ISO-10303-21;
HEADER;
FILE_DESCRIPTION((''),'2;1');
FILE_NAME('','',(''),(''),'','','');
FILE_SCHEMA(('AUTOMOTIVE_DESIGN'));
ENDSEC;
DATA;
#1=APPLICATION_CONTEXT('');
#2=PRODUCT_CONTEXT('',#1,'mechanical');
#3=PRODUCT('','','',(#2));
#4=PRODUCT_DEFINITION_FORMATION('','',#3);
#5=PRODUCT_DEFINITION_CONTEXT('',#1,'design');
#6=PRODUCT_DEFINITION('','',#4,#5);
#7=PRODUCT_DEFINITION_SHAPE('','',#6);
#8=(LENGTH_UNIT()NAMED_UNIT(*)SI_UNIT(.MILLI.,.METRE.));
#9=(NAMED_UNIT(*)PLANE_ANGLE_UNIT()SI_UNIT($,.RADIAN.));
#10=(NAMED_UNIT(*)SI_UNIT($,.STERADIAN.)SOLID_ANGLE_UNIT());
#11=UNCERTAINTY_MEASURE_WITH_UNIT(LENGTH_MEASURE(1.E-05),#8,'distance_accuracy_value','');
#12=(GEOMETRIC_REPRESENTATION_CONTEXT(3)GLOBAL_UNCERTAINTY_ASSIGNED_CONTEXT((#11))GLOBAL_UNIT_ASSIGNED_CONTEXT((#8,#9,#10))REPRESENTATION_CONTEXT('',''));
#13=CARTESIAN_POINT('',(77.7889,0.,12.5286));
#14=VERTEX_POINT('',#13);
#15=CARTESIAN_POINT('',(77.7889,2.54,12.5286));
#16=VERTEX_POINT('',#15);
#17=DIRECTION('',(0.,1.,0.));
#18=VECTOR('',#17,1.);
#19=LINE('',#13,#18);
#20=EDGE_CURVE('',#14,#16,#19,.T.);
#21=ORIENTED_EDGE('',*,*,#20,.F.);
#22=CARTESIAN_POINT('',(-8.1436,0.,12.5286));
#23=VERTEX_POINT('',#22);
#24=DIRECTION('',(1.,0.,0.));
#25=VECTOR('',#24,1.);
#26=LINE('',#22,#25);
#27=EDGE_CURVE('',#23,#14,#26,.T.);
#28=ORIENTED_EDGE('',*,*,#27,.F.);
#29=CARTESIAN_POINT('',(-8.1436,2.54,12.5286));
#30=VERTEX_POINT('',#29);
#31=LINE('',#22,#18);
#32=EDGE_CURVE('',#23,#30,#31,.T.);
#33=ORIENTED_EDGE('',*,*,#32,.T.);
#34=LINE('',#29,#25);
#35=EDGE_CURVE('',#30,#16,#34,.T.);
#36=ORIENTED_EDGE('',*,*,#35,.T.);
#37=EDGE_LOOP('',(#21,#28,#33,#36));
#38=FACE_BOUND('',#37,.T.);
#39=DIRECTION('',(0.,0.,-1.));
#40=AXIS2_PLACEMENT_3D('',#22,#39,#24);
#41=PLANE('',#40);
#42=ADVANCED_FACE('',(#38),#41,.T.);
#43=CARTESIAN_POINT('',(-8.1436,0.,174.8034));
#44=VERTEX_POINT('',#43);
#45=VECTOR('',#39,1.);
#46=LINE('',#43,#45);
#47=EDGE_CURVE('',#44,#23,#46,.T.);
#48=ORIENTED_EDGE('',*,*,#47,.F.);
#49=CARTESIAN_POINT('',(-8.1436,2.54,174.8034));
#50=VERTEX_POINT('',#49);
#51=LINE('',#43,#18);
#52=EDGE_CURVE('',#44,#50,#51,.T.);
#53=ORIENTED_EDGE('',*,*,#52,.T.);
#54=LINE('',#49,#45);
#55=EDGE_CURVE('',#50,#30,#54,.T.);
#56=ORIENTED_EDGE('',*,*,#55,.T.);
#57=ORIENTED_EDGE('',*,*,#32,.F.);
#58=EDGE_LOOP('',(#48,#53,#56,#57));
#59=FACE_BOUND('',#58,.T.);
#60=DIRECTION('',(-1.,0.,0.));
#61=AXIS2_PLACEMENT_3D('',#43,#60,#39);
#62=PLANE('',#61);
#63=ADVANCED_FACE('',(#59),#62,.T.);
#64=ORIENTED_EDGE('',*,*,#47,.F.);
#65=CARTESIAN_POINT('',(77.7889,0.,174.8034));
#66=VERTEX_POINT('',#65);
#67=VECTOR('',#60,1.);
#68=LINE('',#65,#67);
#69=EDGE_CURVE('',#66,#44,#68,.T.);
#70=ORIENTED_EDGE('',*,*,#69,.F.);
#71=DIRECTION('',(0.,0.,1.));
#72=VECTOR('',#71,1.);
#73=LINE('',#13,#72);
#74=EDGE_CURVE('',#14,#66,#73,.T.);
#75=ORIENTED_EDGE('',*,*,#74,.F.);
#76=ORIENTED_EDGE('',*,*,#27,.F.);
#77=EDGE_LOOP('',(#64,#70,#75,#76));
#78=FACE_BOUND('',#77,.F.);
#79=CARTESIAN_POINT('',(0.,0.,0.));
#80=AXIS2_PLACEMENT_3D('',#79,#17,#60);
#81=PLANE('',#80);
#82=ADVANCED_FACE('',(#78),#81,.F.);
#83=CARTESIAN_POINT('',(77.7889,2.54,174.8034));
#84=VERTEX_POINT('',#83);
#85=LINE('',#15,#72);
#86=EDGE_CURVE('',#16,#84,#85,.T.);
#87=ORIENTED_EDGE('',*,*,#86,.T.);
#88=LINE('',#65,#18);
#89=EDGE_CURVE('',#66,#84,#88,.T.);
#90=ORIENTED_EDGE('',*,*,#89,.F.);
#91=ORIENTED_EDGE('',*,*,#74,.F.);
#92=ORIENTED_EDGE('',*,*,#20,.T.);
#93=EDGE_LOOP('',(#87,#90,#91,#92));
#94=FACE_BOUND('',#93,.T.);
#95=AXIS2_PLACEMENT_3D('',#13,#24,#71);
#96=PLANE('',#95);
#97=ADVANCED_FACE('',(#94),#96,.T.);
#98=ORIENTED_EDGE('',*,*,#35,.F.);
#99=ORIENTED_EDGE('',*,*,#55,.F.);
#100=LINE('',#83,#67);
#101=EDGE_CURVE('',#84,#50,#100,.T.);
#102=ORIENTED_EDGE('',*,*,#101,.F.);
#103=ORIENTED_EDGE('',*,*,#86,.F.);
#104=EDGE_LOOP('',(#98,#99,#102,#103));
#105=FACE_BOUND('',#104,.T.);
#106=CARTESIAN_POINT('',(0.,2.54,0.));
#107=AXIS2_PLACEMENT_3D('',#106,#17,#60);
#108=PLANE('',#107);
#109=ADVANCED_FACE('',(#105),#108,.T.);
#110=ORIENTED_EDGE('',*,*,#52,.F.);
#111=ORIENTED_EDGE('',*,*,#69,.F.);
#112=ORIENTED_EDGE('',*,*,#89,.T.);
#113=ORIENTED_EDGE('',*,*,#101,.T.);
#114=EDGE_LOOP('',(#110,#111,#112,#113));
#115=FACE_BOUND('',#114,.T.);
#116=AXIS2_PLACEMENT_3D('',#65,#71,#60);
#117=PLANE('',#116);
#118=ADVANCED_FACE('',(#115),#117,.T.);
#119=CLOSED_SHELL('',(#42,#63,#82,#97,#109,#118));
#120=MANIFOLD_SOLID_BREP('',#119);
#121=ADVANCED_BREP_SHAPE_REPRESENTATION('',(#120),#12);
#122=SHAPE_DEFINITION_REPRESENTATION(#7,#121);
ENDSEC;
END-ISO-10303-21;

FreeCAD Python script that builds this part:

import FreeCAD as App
import Part
import Sketcher
from FreeCAD import Vector
Q = App.Units.Quantity

doc = App.newDocument("Part")
body = doc.addObject("PartDesign::Body", "Body")

sketch1 = doc.addObject("Sketcher::SketchObject", "Sketch")
body.addObject(sketch1)
sketch1.AttachmentSupport = (doc.XZ_Plane, [""])
sketch1.MapMode = "FlatFace"
sketch1.addGeometry(Part.LineSegment(Vector(78, 13, 0), Vector(-8, 13, 0)), False)
sketch1.addGeometry(Part.LineSegment(Vector(-8, 13, 0), Vector(-8, 175, 0)), False)
sketch1.addGeometry(Part.LineSegment(Vector(-8, 175, 0), Vector(78, 175, 0)), False)
sketch1.addGeometry(Part.LineSegment(Vector(78, 175, 0), Vector(78, 13, 0)), False)
sketch1.addConstraint(Sketcher.Constraint("Coincident", 0, 2, 1, 1))
sketch1.addConstraint(Sketcher.Constraint("Coincident", 1, 2, 2, 1))
sketch1.addConstraint(Sketcher.Constraint("Coincident", 2, 2, 3, 1))
sketch1.addConstraint(Sketcher.Constraint("Coincident", 3, 2, 0, 1))
sketch1.addConstraint(Sketcher.Constraint("Horizontal", 0))
sketch1.addConstraint(Sketcher.Constraint("Vertical", 1))
sketch1.addConstraint(Sketcher.Constraint("Horizontal", 2))
sketch1.addConstraint(Sketcher.Constraint("Vertical", 3))
sketch1.addConstraint(Sketcher.Constraint("DistanceX", 0, 2, 0, 1, 85.9325))
sketch1.addConstraint(Sketcher.Constraint("DistanceY", 1, 1, 1, 2, 162.2748))
sketch1.addConstraint(Sketcher.Constraint("DistanceX", 0, 2, -1, 1, 8.1436))
sketch1.addConstraint(Sketcher.Constraint("DistanceY", -1, 1, 0, 2, 12.5286))
pad1 = doc.addObject("PartDesign::Pad", "Pad")
body.addObject(pad1)
pad1.Profile = sketch1
pad1.Length = Q("0.1 in")
pad1.Reversed = True

doc.recompute()
